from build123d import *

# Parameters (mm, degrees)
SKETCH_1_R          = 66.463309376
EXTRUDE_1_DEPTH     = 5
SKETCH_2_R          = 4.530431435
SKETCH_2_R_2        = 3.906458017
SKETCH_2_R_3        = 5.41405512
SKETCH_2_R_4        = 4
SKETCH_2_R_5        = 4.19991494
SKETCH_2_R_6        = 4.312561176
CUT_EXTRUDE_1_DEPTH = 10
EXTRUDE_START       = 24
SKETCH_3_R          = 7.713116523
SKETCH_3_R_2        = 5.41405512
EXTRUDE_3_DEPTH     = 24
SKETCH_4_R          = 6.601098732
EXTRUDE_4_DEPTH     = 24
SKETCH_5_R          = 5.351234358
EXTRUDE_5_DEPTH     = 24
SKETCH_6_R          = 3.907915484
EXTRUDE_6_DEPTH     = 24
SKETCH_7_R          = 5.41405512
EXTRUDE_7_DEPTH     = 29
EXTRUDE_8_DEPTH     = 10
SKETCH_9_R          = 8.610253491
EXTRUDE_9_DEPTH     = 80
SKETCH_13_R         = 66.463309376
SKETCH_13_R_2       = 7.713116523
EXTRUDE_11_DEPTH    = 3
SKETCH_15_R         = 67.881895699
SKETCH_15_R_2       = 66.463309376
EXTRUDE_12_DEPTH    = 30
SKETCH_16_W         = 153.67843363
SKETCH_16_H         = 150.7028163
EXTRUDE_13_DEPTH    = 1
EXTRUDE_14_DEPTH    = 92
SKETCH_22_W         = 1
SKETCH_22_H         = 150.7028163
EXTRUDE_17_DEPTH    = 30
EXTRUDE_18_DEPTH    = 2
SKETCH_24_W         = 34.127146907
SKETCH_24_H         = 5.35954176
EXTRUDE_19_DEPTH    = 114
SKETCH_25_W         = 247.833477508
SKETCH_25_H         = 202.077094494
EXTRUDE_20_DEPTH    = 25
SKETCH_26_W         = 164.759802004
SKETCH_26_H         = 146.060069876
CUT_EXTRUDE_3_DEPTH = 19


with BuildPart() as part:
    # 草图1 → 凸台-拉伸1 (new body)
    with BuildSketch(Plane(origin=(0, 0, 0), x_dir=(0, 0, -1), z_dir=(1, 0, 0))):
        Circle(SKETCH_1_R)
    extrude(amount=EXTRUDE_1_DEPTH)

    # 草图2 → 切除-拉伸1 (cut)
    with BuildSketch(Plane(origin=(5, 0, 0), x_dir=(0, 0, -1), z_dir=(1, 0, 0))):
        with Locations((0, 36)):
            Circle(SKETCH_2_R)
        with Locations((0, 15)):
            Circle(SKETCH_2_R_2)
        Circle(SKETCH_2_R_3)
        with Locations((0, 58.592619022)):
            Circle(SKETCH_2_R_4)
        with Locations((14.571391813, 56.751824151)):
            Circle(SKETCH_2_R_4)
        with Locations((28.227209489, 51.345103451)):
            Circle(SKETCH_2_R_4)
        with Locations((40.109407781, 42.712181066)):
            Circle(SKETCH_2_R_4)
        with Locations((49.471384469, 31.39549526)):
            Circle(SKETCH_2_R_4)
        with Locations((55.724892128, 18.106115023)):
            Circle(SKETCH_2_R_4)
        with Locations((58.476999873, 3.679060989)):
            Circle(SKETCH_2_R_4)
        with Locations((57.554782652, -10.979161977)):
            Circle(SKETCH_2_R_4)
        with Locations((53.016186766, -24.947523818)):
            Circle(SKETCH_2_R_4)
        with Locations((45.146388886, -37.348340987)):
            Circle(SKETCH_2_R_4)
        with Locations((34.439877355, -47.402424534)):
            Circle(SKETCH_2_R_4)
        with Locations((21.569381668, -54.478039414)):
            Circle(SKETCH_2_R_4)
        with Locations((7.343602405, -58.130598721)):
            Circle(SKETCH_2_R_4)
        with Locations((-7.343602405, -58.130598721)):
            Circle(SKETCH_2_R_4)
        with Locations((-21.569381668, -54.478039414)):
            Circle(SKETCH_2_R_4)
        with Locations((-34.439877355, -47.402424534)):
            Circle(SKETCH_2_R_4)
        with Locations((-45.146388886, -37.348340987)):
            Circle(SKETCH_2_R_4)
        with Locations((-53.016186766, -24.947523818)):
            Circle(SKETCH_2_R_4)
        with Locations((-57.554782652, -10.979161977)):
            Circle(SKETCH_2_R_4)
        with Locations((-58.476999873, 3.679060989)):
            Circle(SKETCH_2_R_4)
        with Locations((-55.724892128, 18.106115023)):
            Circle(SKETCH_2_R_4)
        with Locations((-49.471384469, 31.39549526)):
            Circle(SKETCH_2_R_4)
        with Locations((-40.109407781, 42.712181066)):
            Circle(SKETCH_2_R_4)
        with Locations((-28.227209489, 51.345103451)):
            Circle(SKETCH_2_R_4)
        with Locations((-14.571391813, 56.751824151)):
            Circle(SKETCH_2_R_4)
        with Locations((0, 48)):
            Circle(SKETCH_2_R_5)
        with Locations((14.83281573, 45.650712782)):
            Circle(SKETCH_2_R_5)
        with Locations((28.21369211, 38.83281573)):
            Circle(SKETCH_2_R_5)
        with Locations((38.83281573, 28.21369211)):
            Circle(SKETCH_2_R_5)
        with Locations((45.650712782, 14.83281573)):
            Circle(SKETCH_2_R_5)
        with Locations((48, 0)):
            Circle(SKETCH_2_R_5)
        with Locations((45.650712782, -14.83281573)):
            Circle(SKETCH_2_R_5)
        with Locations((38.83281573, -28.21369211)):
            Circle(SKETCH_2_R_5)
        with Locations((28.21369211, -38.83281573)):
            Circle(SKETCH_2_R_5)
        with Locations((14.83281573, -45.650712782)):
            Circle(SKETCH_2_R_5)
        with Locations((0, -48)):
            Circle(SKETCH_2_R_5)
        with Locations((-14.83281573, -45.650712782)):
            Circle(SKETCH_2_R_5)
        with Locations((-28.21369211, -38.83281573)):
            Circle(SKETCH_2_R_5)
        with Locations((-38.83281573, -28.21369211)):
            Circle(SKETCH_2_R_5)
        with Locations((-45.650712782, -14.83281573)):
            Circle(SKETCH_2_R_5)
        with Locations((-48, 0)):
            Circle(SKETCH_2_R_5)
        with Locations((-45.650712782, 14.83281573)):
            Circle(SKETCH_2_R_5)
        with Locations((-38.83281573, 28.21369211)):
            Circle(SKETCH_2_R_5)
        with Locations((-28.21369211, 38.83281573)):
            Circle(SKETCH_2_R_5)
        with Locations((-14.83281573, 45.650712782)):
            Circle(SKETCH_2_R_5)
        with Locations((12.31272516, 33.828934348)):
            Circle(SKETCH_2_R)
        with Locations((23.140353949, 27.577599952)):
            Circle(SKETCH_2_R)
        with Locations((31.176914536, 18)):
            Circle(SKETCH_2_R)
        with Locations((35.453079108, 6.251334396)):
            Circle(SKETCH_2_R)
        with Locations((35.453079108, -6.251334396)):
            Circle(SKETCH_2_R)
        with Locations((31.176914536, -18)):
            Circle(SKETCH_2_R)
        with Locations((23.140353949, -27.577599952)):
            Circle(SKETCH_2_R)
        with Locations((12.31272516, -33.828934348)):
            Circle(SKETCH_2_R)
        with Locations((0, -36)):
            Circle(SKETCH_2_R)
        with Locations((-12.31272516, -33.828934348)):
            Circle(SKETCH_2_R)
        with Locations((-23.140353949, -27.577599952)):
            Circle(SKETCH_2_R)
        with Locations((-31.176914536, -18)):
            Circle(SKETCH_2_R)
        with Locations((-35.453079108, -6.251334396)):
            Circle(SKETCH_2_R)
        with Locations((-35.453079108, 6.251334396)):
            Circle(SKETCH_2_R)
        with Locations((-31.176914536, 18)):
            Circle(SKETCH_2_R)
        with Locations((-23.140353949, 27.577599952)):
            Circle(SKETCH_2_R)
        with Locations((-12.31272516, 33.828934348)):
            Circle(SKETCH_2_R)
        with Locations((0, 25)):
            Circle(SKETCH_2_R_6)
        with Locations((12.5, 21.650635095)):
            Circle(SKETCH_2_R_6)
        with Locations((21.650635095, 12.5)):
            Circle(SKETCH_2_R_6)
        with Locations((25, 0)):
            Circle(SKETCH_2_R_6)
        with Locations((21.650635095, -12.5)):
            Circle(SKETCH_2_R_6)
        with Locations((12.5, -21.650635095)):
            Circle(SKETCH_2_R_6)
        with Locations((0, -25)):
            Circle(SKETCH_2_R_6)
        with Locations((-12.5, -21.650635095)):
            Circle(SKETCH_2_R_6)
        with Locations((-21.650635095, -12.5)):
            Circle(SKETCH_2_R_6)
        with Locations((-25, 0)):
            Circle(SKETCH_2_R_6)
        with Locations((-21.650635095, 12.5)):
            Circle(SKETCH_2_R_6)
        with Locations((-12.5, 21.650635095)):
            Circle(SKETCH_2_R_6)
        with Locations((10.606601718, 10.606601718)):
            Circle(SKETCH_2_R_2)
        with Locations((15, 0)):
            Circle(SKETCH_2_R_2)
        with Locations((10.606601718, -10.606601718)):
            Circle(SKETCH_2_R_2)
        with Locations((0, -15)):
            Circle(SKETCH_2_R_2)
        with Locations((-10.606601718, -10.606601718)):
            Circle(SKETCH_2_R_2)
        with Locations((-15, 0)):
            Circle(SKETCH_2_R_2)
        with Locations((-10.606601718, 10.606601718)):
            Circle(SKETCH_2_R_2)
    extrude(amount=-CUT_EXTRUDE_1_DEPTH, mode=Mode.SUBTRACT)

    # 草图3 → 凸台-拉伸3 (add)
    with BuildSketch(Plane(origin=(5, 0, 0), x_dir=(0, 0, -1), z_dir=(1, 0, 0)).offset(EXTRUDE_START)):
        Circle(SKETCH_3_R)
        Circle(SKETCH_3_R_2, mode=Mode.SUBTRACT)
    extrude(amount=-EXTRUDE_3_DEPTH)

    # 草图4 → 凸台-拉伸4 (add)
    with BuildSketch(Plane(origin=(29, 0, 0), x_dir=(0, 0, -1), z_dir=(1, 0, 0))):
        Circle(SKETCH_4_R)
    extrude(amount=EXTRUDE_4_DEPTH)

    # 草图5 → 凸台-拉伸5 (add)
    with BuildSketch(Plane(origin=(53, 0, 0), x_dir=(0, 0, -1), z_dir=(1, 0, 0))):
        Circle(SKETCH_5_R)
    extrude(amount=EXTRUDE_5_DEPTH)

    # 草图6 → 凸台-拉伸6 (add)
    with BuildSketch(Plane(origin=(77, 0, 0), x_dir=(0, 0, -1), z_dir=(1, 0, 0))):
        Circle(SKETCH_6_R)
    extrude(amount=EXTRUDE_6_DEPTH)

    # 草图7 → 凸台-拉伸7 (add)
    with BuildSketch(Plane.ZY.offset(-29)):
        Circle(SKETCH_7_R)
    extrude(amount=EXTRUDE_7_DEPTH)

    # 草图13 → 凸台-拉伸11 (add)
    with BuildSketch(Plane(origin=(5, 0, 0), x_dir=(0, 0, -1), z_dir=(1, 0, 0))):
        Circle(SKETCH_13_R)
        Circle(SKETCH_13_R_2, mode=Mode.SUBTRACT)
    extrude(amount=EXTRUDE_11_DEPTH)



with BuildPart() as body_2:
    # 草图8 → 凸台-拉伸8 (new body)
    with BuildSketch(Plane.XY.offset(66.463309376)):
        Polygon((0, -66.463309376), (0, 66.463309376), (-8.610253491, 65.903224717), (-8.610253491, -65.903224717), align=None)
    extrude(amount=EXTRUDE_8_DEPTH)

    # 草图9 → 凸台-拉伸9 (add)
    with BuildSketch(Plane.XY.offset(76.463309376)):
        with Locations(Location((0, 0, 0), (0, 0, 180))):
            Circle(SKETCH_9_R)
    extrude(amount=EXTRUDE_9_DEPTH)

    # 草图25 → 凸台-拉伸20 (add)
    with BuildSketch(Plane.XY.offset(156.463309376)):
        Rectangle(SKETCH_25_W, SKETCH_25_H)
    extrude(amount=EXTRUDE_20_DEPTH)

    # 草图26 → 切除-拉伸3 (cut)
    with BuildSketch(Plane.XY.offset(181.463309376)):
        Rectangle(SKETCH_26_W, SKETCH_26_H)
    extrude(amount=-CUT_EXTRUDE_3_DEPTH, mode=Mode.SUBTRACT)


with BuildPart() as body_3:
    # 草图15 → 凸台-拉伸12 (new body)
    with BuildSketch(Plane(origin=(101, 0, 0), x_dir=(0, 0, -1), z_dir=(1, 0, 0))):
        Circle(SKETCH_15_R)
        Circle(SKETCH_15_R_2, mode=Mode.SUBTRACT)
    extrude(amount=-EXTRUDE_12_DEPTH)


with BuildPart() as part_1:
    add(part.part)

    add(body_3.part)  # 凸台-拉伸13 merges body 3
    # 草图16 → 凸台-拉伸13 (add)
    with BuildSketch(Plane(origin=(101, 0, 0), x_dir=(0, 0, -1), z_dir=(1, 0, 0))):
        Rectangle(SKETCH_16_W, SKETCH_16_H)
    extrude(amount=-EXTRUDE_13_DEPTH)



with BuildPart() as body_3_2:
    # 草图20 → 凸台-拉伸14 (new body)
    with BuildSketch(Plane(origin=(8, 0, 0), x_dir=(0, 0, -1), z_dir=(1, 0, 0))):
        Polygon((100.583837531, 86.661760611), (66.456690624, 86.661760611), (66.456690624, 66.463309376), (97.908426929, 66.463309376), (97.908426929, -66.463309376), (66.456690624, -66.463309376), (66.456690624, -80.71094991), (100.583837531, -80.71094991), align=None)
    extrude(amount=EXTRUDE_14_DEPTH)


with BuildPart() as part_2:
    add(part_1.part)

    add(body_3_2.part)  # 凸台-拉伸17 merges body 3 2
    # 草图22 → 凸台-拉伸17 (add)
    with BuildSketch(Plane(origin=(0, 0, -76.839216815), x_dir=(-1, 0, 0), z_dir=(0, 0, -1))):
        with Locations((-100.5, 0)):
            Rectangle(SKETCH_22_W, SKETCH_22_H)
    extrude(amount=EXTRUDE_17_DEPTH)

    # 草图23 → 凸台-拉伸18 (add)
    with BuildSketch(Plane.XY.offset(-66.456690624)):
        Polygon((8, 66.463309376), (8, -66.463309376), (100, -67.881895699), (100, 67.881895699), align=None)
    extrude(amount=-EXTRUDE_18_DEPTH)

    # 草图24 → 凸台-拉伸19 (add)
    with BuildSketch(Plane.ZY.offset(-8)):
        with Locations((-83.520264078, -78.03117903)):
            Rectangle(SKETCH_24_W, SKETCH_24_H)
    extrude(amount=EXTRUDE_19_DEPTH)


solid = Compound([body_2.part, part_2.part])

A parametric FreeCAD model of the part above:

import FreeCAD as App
import Part
import Sketcher
Q = App.Units.Quantity

doc = App.newDocument("Part")
body = doc.addObject("PartDesign::Body", "Body")

# Sketch on YZ plane
sketch1 = body.newObject("Sketcher::SketchObject", "Sketch")
sketch1.AttachmentSupport = (doc.getObject("YZ_Plane"), [""])
sketch1.MapMode = "FlatFace"
sketch1.addGeometry(Part.Circle(App.Vector(0, 0, 0), App.Vector(0, 0, 1), 66.463309), False)
sketch1.addConstraint([
    Sketcher.Constraint("Coincident", 0, 3, -1, 1),
    Sketcher.Constraint("Diameter", 0, Q("132.926619 mm")),
])
pad1 = body.newObject("PartDesign::Pad", "Pad")
pad1.Profile = sketch1
pad1.Length = 5

# Sketch on YZ plane
sketch2 = body.newObject("Sketcher::SketchObject", "Sketch001")
sketch2.AttachmentSupport = (doc.getObject("YZ_Plane"), [""])
sketch2.MapMode = "FlatFace"
sketch2.AttachmentOffset = App.Placement(App.Vector(0, 0, 5), App.Rotation())
sketch2.addGeometry([
    Part.Circle(App.Vector(36, 0, 0), App.Vector(0, 0, 1), 4.530431),  # 0
    Part.Circle(App.Vector(15, 0, 0), App.Vector(0, 0, 1), 3.906458),  # 1
    Part.Circle(App.Vector(0, 0, 0), App.Vector(0, 0, 1), 5.414055),  # 2
    Part.Circle(App.Vector(58.592619, 0, 0), App.Vector(0, 0, 1), 4),  # 3
    Part.Circle(App.Vector(56.751824, -14.571392, 0), App.Vector(0, 0, 1), 4),  # 4
    Part.Circle(App.Vector(51.345103, -28.227209, 0), App.Vector(0, 0, 1), 4),  # 5
    Part.Circle(App.Vector(42.712181, -40.109408, 0), App.Vector(0, 0, 1), 4),  # 6
    Part.Circle(App.Vector(31.395495, -49.471384, 0), App.Vector(0, 0, 1), 4),  # 7
    Part.Circle(App.Vector(18.106115, -55.724892, 0), App.Vector(0, 0, 1), 4),  # 8
    Part.Circle(App.Vector(3.679061, -58.477, 0), App.Vector(0, 0, 1), 4),  # 9
    Part.Circle(App.Vector(-10.979162, -57.554783, 0), App.Vector(0, 0, 1), 4),  # 10
    Part.Circle(App.Vector(-24.947524, -53.016187, 0), App.Vector(0, 0, 1), 4),  # 11
    Part.Circle(App.Vector(-37.348341, -45.146389, 0), App.Vector(0, 0, 1), 4),  # 12
    Part.Circle(App.Vector(-47.402425, -34.439877, 0), App.Vector(0, 0, 1), 4),  # 13
    Part.Circle(App.Vector(-54.478039, -21.569382, 0), App.Vector(0, 0, 1), 4),  # 14
    Part.Circle(App.Vector(-58.130599, -7.343602, 0), App.Vector(0, 0, 1), 4),  # 15
    Part.Circle(App.Vector(-58.130599, 7.343602, 0), App.Vector(0, 0, 1), 4),  # 16
    Part.Circle(App.Vector(-54.478039, 21.569382, 0), App.Vector(0, 0, 1), 4),  # 17
    Part.Circle(App.Vector(-47.402425, 34.439877, 0), App.Vector(0, 0, 1), 4),  # 18
    Part.Circle(App.Vector(-37.348341, 45.146389, 0), App.Vector(0, 0, 1), 4),  # 19
    Part.Circle(App.Vector(-24.947524, 53.016187, 0), App.Vector(0, 0, 1), 4),  # 20
    Part.Circle(App.Vector(-10.979162, 57.554783, 0), App.Vector(0, 0, 1), 4),  # 21
    Part.Circle(App.Vector(3.679061, 58.477, 0), App.Vector(0, 0, 1), 4),  # 22
    Part.Circle(App.Vector(18.106115, 55.724892, 0), App.Vector(0, 0, 1), 4),  # 23
    Part.Circle(App.Vector(31.395495, 49.471384, 0), App.Vector(0, 0, 1), 4),  # 24
    Part.Circle(App.Vector(42.712181, 40.109408, 0), App.Vector(0, 0, 1), 4),  # 25
    Part.Circle(App.Vector(51.345103, 28.227209, 0), App.Vector(0, 0, 1), 4),  # 26
    Part.Circle(App.Vector(56.751824, 14.571392, 0), App.Vector(0, 0, 1), 4),  # 27
    Part.Circle(App.Vector(48, 0, 0), App.Vector(0, 0, 1), 4.199915),  # 28
    Part.Circle(App.Vector(45.650713, -14.832816, 0), App.Vector(0, 0, 1), 4.199915),  # 29
    Part.Circle(App.Vector(38.832816, -28.213692, 0), App.Vector(0, 0, 1), 4.199915),  # 30
    Part.Circle(App.Vector(28.213692, -38.832816, 0), App.Vector(0, 0, 1), 4.199915),  # 31
    Part.Circle(App.Vector(14.832816, -45.650713, 0), App.Vector(0, 0, 1), 4.199915),  # 32
    Part.Circle(App.Vector(0, -48, 0), App.Vector(0, 0, 1), 4.199915),  # 33
    Part.Circle(App.Vector(-14.832816, -45.650713, 0), App.Vector(0, 0, 1), 4.199915),  # 34
    Part.Circle(App.Vector(-28.213692, -38.832816, 0), App.Vector(0, 0, 1), 4.199915),  # 35
    Part.Circle(App.Vector(-38.832816, -28.213692, 0), App.Vector(0, 0, 1), 4.199915),  # 36
    Part.Circle(App.Vector(-45.650713, -14.832816, 0), App.Vector(0, 0, 1), 4.199915),  # 37
    Part.Circle(App.Vector(-48, 0, 0), App.Vector(0, 0, 1), 4.199915),  # 38
    Part.Circle(App.Vector(-45.650713, 14.832816, 0), App.Vector(0, 0, 1), 4.199915),  # 39
    Part.Circle(App.Vector(-38.832816, 28.213692, 0), App.Vector(0, 0, 1), 4.199915),  # 40
    Part.Circle(App.Vector(-28.213692, 38.832816, 0), App.Vector(0, 0, 1), 4.199915),  # 41
    Part.Circle(App.Vector(-14.832816, 45.650713, 0), App.Vector(0, 0, 1), 4.199915),  # 42
    Part.Circle(App.Vector(0, 48, 0), App.Vector(0, 0, 1), 4.199915),  # 43
    Part.Circle(App.Vector(14.832816, 45.650713, 0), App.Vector(0, 0, 1), 4.199915),  # 44
    Part.Circle(App.Vector(28.213692, 38.832816, 0), App.Vector(0, 0, 1), 4.199915),  # 45
    Part.Circle(App.Vector(38.832816, 28.213692, 0), App.Vector(0, 0, 1), 4.199915),  # 46
    Part.Circle(App.Vector(45.650713, 14.832816, 0), App.Vector(0, 0, 1), 4.199915),  # 47
    Part.Circle(App.Vector(33.828934, -12.312725, 0), App.Vector(0, 0, 1), 4.530431),  # 48
    Part.Circle(App.Vector(27.5776, -23.140354, 0), App.Vector(0, 0, 1), 4.530431),  # 49
    Part.Circle(App.Vector(18, -31.176915, 0), App.Vector(0, 0, 1), 4.530431),  # 50
    Part.Circle(App.Vector(6.251334, -35.453079, 0), App.Vector(0, 0, 1), 4.530431),  # 51
    Part.Circle(App.Vector(-6.251334, -35.453079, 0), App.Vector(0, 0, 1), 4.530431),  # 52
    Part.Circle(App.Vector(-18, -31.176915, 0), App.Vector(0, 0, 1), 4.530431),  # 53
    Part.Circle(App.Vector(-27.5776, -23.140354, 0), App.Vector(0, 0, 1), 4.530431),  # 54
    Part.Circle(App.Vector(-33.828934, -12.312725, 0), App.Vector(0, 0, 1), 4.530431),  # 55
    Part.Circle(App.Vector(-36, 0, 0), App.Vector(0, 0, 1), 4.530431),  # 56
    Part.Circle(App.Vector(-33.828934, 12.312725, 0), App.Vector(0, 0, 1), 4.530431),  # 57
    Part.Circle(App.Vector(-27.5776, 23.140354, 0), App.Vector(0, 0, 1), 4.530431),  # 58
    Part.Circle(App.Vector(-18, 31.176915, 0), App.Vector(0, 0, 1), 4.530431),  # 59
    Part.Circle(App.Vector(-6.251334, 35.453079, 0), App.Vector(0, 0, 1), 4.530431),  # 60
    Part.Circle(App.Vector(6.251334, 35.453079, 0), App.Vector(0, 0, 1), 4.530431),  # 61
    Part.Circle(App.Vector(18, 31.176915, 0), App.Vector(0, 0, 1), 4.530431),  # 62
    Part.Circle(App.Vector(27.5776, 23.140354, 0), App.Vector(0, 0, 1), 4.530431),  # 63
    Part.Circle(App.Vector(33.828934, 12.312725, 0), App.Vector(0, 0, 1), 4.530431),  # 64
    Part.Circle(App.Vector(25, 0, 0), App.Vector(0, 0, 1), 4.312561),  # 65
    Part.Circle(App.Vector(21.650635, -12.5, 0), App.Vector(0, 0, 1), 4.312561),  # 66
    Part.Circle(App.Vector(12.5, -21.650635, 0), App.Vector(0, 0, 1), 4.312561),  # 67
    Part.Circle(App.Vector(0, -25, 0), App.Vector(0, 0, 1), 4.312561),  # 68
    Part.Circle(App.Vector(-12.5, -21.650635, 0), App.Vector(0, 0, 1), 4.312561),  # 69
    Part.Circle(App.Vector(-21.650635, -12.5, 0), App.Vector(0, 0, 1), 4.312561),  # 70
    Part.Circle(App.Vector(-25, 0, 0), App.Vector(0, 0, 1), 4.312561),  # 71
    Part.Circle(App.Vector(-21.650635, 12.5, 0), App.Vector(0, 0, 1), 4.312561),  # 72
    Part.Circle(App.Vector(-12.5, 21.650635, 0), App.Vector(0, 0, 1), 4.312561),  # 73
    Part.Circle(App.Vector(0, 25, 0), App.Vector(0, 0, 1), 4.312561),  # 74
    Part.Circle(App.Vector(12.5, 21.650635, 0), App.Vector(0, 0, 1), 4.312561),  # 75
    Part.Circle(App.Vector(21.650635, 12.5, 0), App.Vector(0, 0, 1), 4.312561),  # 76
    Part.Circle(App.Vector(10.606602, -10.606602, 0), App.Vector(0, 0, 1), 3.906458),  # 77
    Part.Circle(App.Vector(0, -15, 0), App.Vector(0, 0, 1), 3.906458),  # 78
    Part.Circle(App.Vector(-10.606602, -10.606602, 0), App.Vector(0, 0, 1), 3.906458),  # 79
    Part.Circle(App.Vector(-15, 0, 0), App.Vector(0, 0, 1), 3.906458),  # 80
    Part.Circle(App.Vector(-10.606602, 10.606602, 0), App.Vector(0, 0, 1), 3.906458),  # 81
    Part.Circle(App.Vector(0, 15, 0), App.Vector(0, 0, 1), 3.906458),  # 82
    Part.Circle(App.Vector(10.606602, 10.606602, 0), App.Vector(0, 0, 1), 3.906458),  # 83
], False)
sketch2.addConstraint([
    Sketcher.Constraint("Coincident", 2, 3, -1, 1),
    Sketcher.Constraint("Equal", 3, 4),
    Sketcher.Constraint("Equal", 4, 5),
    Sketcher.Constraint("Equal", 5, 6),
    Sketcher.Constraint("Equal", 6, 7),
    Sketcher.Constraint("Equal", 7, 8),
    Sketcher.Constraint("Equal", 8, 9),
    Sketcher.Constraint("Equal", 9, 10),
    Sketcher.Constraint("Equal", 10, 11),
    Sketcher.Constraint("Equal", 11, 12),
    Sketcher.Constraint("Equal", 12, 13),
    Sketcher.Constraint("Equal", 13, 14),
    Sketcher.Constraint("Equal", 14, 15),
    Sketcher.Constraint("Equal", 15, 16),
    Sketcher.Constraint("Equal", 16, 17),
    Sketcher.Constraint("Equal", 17, 18),
    Sketcher.Constraint("Equal", 18, 19),
    Sketcher.Constraint("Equal", 19, 20),
    Sketcher.Constraint("Equal", 20, 21),
    Sketcher.Constraint("Equal", 21, 22),
    Sketcher.Constraint("Equal", 22, 23),
    Sketcher.Constraint("Equal", 23, 24),
    Sketcher.Constraint("Equal", 24, 25),
    Sketcher.Constraint("Equal", 25, 26),
    Sketcher.Constraint("Equal", 26, 27),
    Sketcher.Constraint("Equal", 28, 29),
    Sketcher.Constraint("Equal", 29, 30),
    Sketcher.Constraint("Equal", 30, 31),
    Sketcher.Constraint("Equal", 31, 32),
    Sketcher.Constraint("Equal", 32, 33),
    Sketcher.Constraint("Equal", 33, 34),
    Sketcher.Constraint("Equal", 34, 35),
    Sketcher.Constraint("Equal", 35, 36),
    Sketcher.Constraint("Equal", 36, 37),
    Sketcher.Constraint("Equal", 37, 38),
    Sketcher.Constraint("Equal", 38, 39),
    Sketcher.Constraint("Equal", 39, 40),
    Sketcher.Constraint("Equal", 40, 41),
    Sketcher.Constraint("Equal", 41, 42),
    Sketcher.Constraint("Equal", 42, 43),
    Sketcher.Constraint("Equal", 43, 44),
    Sketcher.Constraint("Equal", 44, 45),
    Sketcher.Constraint("Equal", 45, 46),
    Sketcher.Constraint("Equal", 46, 47),
    Sketcher.Constraint("Equal", 0, 48),
    Sketcher.Constraint("Equal", 48, 49),
    Sketcher.Constraint("Equal", 49, 50),
    Sketcher.Constraint("Equal", 50, 51),
    Sketcher.Constraint("Equal", 51, 52),
    Sketcher.Constraint("Equal", 52, 53),
    Sketcher.Constraint("Equal", 53, 54),
    Sketcher.Constraint("Equal", 54, 55),
    Sketcher.Constraint("Equal", 55, 56),
    Sketcher.Constraint("Equal", 56, 57),
    Sketcher.Constraint("Equal", 57, 58),
    Sketcher.Constraint("Equal", 58, 59),
    Sketcher.Constraint("Equal", 59, 60),
    Sketcher.Constraint("Equal", 60, 61),
    Sketcher.Constraint("Equal", 61, 62),
    Sketcher.Constraint("Equal", 62, 63),
    Sketcher.Constraint("Equal", 63, 64),
    Sketcher.Constraint("Equal", 65, 66),
    Sketcher.Constraint("Equal", 66, 67),
    Sketcher.Constraint("Equal", 67, 68),
    Sketcher.Constraint("Equal", 68, 69),
    Sketcher.Constraint("Equal", 69, 70),
    Sketcher.Constraint("Equal", 70, 71),
    Sketcher.Constraint("Equal", 71, 72),
    Sketcher.Constraint("Equal", 72, 73),
    Sketcher.Constraint("Equal", 73, 74),
    Sketcher.Constraint("Equal", 74, 75),
    Sketcher.Constraint("Equal", 75, 76),
    Sketcher.Constraint("Equal", 1, 77),
    Sketcher.Constraint("Equal", 77, 78),
    Sketcher.Constraint("Equal", 78, 79),
    Sketcher.Constraint("Equal", 79, 80),
    Sketcher.Constraint("Equal", 80, 81),
    Sketcher.Constraint("Equal", 81, 82),
    Sketcher.Constraint("Equal", 82, 83),
    Sketcher.Constraint("Symmetric", 28, 3, 38, 3, -1, 1),
    Sketcher.Constraint("Symmetric", 29, 3, 39, 3, -1, 1),
    Sketcher.Constraint("Symmetric", 30, 3, 40, 3, -1, 1),
    Sketcher.Constraint("Symmetric", 31, 3, 41, 3, -1, 1),
    Sketcher.Constraint("Symmetric", 32, 3, 42, 3, -1, 1),
    Sketcher.Constraint("Symmetric", 33, 3, 43, 3, -1, 1),
    Sketcher.Constraint("Symmetric", 34, 3, 44, 3, -1, 1),
    Sketcher.Constraint("Symmetric", 35, 3, 45, 3, -1, 1),
    Sketcher.Constraint("Symmetric", 36, 3, 46, 3, -1, 1),
    Sketcher.Constraint("Symmetric", 37, 3, 47, 3, -1, 1),
    Sketcher.Constraint("Symmetric", 0, 3, 56, 3, -1, 1),
    Sketcher.Constraint("Symmetric", 48, 3, 57, 3, -1, 1),
    Sketcher.Constraint("Symmetric", 49, 3, 58, 3, -1, 1),
    Sketcher.Constraint("Symmetric", 50, 3, 59, 3, -1, 1),
    Sketcher.Constraint("Symmetric", 51, 3, 60, 3, -1, 1),
    Sketcher.Constraint("Symmetric", 52, 3, 61, 3, -1, 1),
    Sketcher.Constraint("Symmetric", 53, 3, 62, 3, -1, 1),
    Sketcher.Constraint("Symmetric", 54, 3, 63, 3, -1, 1),
    Sketcher.Constraint("Symmetric", 55, 3, 64, 3, -1, 1),
    Sketcher.Constraint("Symmetric", 65, 3, 71, 3, -1, 1),
    Sketcher.Constraint("Symmetric", 66, 3, 72, 3, -1, 1),
    Sketcher.Constraint("Symmetric", 67, 3, 73, 3, -1, 1),
    Sketcher.Constraint("Symmetric", 68, 3, 74, 3, -1, 1),
    Sketcher.Constraint("Symmetric", 69, 3, 75, 3, -1, 1),
    Sketcher.Constraint("Symmetric", 70, 3, 76, 3, -1, 1),
    Sketcher.Constraint("Symmetric", 1, 3, 80, 3, -1, 1),
    Sketcher.Constraint("Symmetric", 77, 3, 81, 3, -1, 1),
    Sketcher.Constraint("Symmetric", 78, 3, 82, 3, -1, 1),
    Sketcher.Constraint("Symmetric", 79, 3, 83, 3, -1, 1),
    Sketcher.Constraint("Symmetric", 32, 3, 34, 3, -2),
    Sketcher.Constraint("Symmetric", 31, 3, 35, 3, -2),
    Sketcher.Constraint("Symmetric", 30, 3, 36, 3, -2),
    Sketcher.Constraint("Symmetric", 29, 3, 37, 3, -2),
    Sketcher.Constraint("Symmetric", 51, 3, 52, 3, -2),
    Sketcher.Constraint("Symmetric", 50, 3, 53, 3, -2),
    Sketcher.Constraint("Symmetric", 49, 3, 54, 3, -2),
    Sketcher.Constraint("Symmetric", 48, 3, 55, 3, -2),
    Sketcher.Constraint("Symmetric", 67, 3, 69, 3, -2),
    Sketcher.Constraint("Symmetric", 66, 3, 70, 3, -2),
    Sketcher.Constraint("Symmetric", 77, 3, 79, 3, -2),
    Sketcher.Constraint("Symmetric", 15, 3, 16, 3, -1),
    Sketcher.Constraint("Symmetric", 14, 3, 17, 3, -1),
    Sketcher.Constraint("Symmetric", 13, 3, 18, 3, -1),
    Sketcher.Constraint("Symmetric", 12, 3, 19, 3, -1),
    Sketcher.Constraint("Symmetric", 11, 3, 20, 3, -1),
    Sketcher.Constraint("Symmetric", 10, 3, 21, 3, -1),
    Sketcher.Constraint("Symmetric", 9, 3, 22, 3, -1),
    Sketcher.Constraint("Symmetric", 8, 3, 23, 3, -1),
    Sketcher.Constraint("Symmetric", 7, 3, 24, 3, -1),
    Sketcher.Constraint("Symmetric", 6, 3, 25, 3, -1),
    Sketcher.Constraint("Symmetric", 5, 3, 26, 3, -1),
    Sketcher.Constraint("Symmetric", 4, 3, 27, 3, -1),
    Sketcher.Constraint("PointOnObject", 0, 3, -1),
    Sketcher.Constraint("PointOnObject", 1, 3, -1),
    Sketcher.Constraint("PointOnObject", 3, 3, -1),
    Sketcher.Constraint("PointOnObject", 28, 3, -1),
    Sketcher.Constraint("PointOnObject", 33, 3, -2),
    Sketcher.Constraint("PointOnObject", 65, 3, -1),
    Sketcher.Constraint("PointOnObject", 68, 3, -2),
    Sketcher.Constraint("PointOnObject", 78, 3, -2),
    Sketcher.Constraint("Diameter", 3, Q("8 mm")),
    Sketcher.Constraint("DistanceX", -1, 1, 0, 3, Q("36 mm")),
    Sketcher.Constraint("DistanceX", -1, 1, 1, 3, Q("15 mm")),
    Sketcher.Constraint("DistanceX", -1, 1, 28, 3, Q("48 mm")),
    Sketcher.Constraint("DistanceY", 33, 3, -1, 1, Q("48 mm")),
    Sketcher.Constraint("DistanceX", -1, 1, 50, 3, Q("18 mm")),
    Sketcher.Constraint("DistanceX", -1, 1, 65, 3, Q("25 mm")),
    Sketcher.Constraint("DistanceY", 68, 3, -1, 1, Q("25 mm")),
    Sketcher.Constraint("DistanceY", 78, 3, -1, 1, Q("15 mm")),
    Sketcher.Constraint("DistanceY", 66, 3, -1, 1, Q("12.5 mm")),
    Sketcher.Constraint("DistanceX", -1, 1, 67, 3, Q("12.5 mm")),
    Sketcher.Constraint("Diameter", 2, Q("10.82811 mm")),
    Sketcher.Constraint("Diameter", 28, Q("8.39983 mm")),
    Sketcher.Constraint("Diameter", 0, Q("9.060863 mm")),
    Sketcher.Constraint("Diameter", 1, Q("7.812916 mm")),
    Sketcher.Constraint("Diameter", 65, Q("8.625122 mm")),
    Sketcher.Constraint("DistanceY", 9, 3, -1, 1, Q("58.477 mm")),
    Sketcher.Constraint("DistanceX", 15, 3, -1, 1, Q("58.130599 mm")),
    Sketcher.Constraint("DistanceX", -1, 1, 49, 3, Q("27.5776 mm")),
    Sketcher.Constraint("DistanceX", -1, 1, 77, 3, Q("10.606602 mm")),
    Sketcher.Constraint("DistanceY", 77, 3, -1, 1, Q("10.606602 mm")),
    Sketcher.Constraint("DistanceX", -1, 1, 3, 3, Q("58.592619 mm")),
    Sketcher.Constraint("DistanceY", 4, 3, -1, 1, Q("14.571392 mm")),
    Sketcher.Constraint("DistanceY", 5, 3, -1, 1, Q("28.227209 mm")),
    Sketcher.Constraint("DistanceX", -1, 1, 6, 3, Q("42.712181 mm")),
    Sketcher.Constraint("DistanceX", -1, 1, 9, 3, Q("3.679061 mm")),
    Sketcher.Constraint("DistanceX", 10, 3, -1, 1, Q("10.979162 mm")),
    Sketcher.Constraint("DistanceX", 12, 3, -1, 1, Q("37.348341 mm")),
    Sketcher.Constraint("DistanceY", 12, 3, -1, 1, Q("45.146389 mm")),
    Sketcher.Constraint("DistanceX", 14, 3, -1, 1, Q("54.478039 mm")),
    Sketcher.Constraint("DistanceY", 14, 3, -1, 1, Q("21.569382 mm")),
    Sketcher.Constraint("DistanceY", 51, 3, -1, 1, Q("35.453079 mm")),
    Sketcher.Constraint("DistanceX", -1, 1, 4, 3, Q("56.751824 mm")),
    Sketcher.Constraint("DistanceX", -1, 1, 5, 3, Q("51.345103 mm")),
    Sketcher.Constraint("DistanceY", 6, 3, -1, 1, Q("40.109408 mm")),
    Sketcher.Constraint("DistanceX", -1, 1, 7, 3, Q("31.395495 mm")),
    Sketcher.Constraint("DistanceY", 7, 3, -1, 1, Q("49.471384 mm")),
    Sketcher.Constraint("DistanceX", -1, 1, 8, 3, Q("18.106115 mm")),
    Sketcher.Constraint("DistanceY", 8, 3, -1, 1, Q("55.724892 mm")),
    Sketcher.Constraint("DistanceY", 10, 3, -1, 1, Q("57.554783 mm")),
    Sketcher.Constraint("DistanceX", 11, 3, -1, 1, Q("24.947524 mm")),
    Sketcher.Constraint("DistanceY", 11, 3, -1, 1, Q("53.016187 mm")),
    Sketcher.Constraint("DistanceX", 13, 3, -1, 1, Q("47.402425 mm")),
    Sketcher.Constraint("DistanceY", 13, 3, -1, 1, Q("34.439877 mm")),
    Sketcher.Constraint("DistanceY", 15, 3, -1, 1, Q("7.343602 mm")),
    Sketcher.Constraint("DistanceX", -1, 1, 29, 3, Q("45.650713 mm")),
    Sketcher.Constraint("DistanceY", 29, 3, -1, 1, Q("14.832816 mm")),
    Sketcher.Constraint("DistanceX", -1, 1, 30, 3, Q("38.832816 mm")),
    Sketcher.Constraint("DistanceY", 30, 3, -1, 1, Q("28.213692 mm")),
    Sketcher.Constraint("DistanceX", -1, 1, 31, 3, Q("28.213692 mm")),
    Sketcher.Constraint("DistanceY", 31, 3, -1, 1, Q("38.832816 mm")),
    Sketcher.Constraint("DistanceX", -1, 1, 32, 3, Q("14.832816 mm")),
    Sketcher.Constraint("DistanceY", 32, 3, -1, 1, Q("45.650713 mm")),
    Sketcher.Constraint("DistanceX", -1, 1, 48, 3, Q("33.828934 mm")),
    Sketcher.Constraint("DistanceY", 48, 3, -1, 1, Q("12.312725 mm")),
    Sketcher.Constraint("DistanceY", 49, 3, -1, 1, Q("23.140354 mm")),
    Sketcher.Constraint("DistanceY", 50, 3, -1, 1, Q("31.176915 mm")),
    Sketcher.Constraint("DistanceX", -1, 1, 51, 3, Q("6.251334 mm")),
    Sketcher.Constraint("DistanceX", -1, 1, 66, 3, Q("21.650635 mm")),
    Sketcher.Constraint("DistanceY", 67, 3, -1, 1, Q("21.650635 mm")),
])
pocket1 = body.newObject("PartDesign::Pocket", "Pocket")
pocket1.Profile = sketch2
pocket1.Length = 10

# Sketch on YZ plane
sketch3 = body.newObject("Sketcher::SketchObject", "Sketch002")
sketch3.AttachmentSupport = (doc.getObject("YZ_Plane"), [""])
sketch3.MapMode = "FlatFace"
sketch3.AttachmentOffset = App.Placement(App.Vector(0, 0, 29), App.Rotation())
sketch3.addGeometry([
    Part.Circle(App.Vector(0, 0, 0), App.Vector(0, 0, 1), 7.713117),
    Part.Circle(App.Vector(0, 0, 0), App.Vector(0, 0, 1), 5.414055),
], False)
sketch3.addConstraint([
    Sketcher.Constraint("Coincident", 0, 3, -1, 1),
    Sketcher.Constraint("Coincident", 1, 3, -1, 1),
    Sketcher.Constraint("Diameter", 1, Q("10.82811 mm")),
    Sketcher.Constraint("Diameter", 0, Q("15.426233 mm")),
])
pad2 = body.newObject("PartDesign::Pad", "Pad001")
pad2.Profile = sketch3
pad2.Length = 24
pad2.Reversed = True

# Sketch on YZ plane
sketch4 = body.newObject("Sketcher::SketchObject", "Sketch003")
sketch4.AttachmentSupport = (doc.getObject("YZ_Plane"), [""])
sketch4.MapMode = "FlatFace"
sketch4.AttachmentOffset = App.Placement(App.Vector(0, 0, 29), App.Rotation())
sketch4.addGeometry(Part.Circle(App.Vector(0, 0, 0), App.Vector(0, 0, 1), 6.601099), False)
sketch4.addConstraint([
    Sketcher.Constraint("Coincident", 0, 3, -1, 1),
    Sketcher.Constraint("Diameter", 0, Q("13.202197 mm")),
])
pad3 = body.newObject("PartDesign::Pad", "Pad002")
pad3.Profile = sketch4
pad3.Length = 24

# Sketch on YZ plane
sketch5 = body.newObject("Sketcher::SketchObject", "Sketch004")
sketch5.AttachmentSupport = (doc.getObject("YZ_Plane"), [""])
sketch5.MapMode = "FlatFace"
sketch5.AttachmentOffset = App.Placement(App.Vector(0, 0, 53), App.Rotation())
sketch5.addGeometry(Part.Circle(App.Vector(0, 0, 0), App.Vector(0, 0, 1), 5.351234), False)
sketch5.addConstraint([
    Sketcher.Constraint("Coincident", 0, 3, -1, 1),
    Sketcher.Constraint("Diameter", 0, Q("10.702469 mm")),
])
pad4 = body.newObject("PartDesign::Pad", "Pad003")
pad4.Profile = sketch5
pad4.Length = 24

# Sketch on YZ plane
sketch6 = body.newObject("Sketcher::SketchObject", "Sketch005")
sketch6.AttachmentSupport = (doc.getObject("YZ_Plane"), [""])
sketch6.MapMode = "FlatFace"
sketch6.AttachmentOffset = App.Placement(App.Vector(0, 0, 77), App.Rotation())
sketch6.addGeometry(Part.Circle(App.Vector(0, 0, 0), App.Vector(0, 0, 1), 3.907915), False)
sketch6.addConstraint([
    Sketcher.Constraint("Coincident", 0, 3, -1, 1),
    Sketcher.Constraint("Diameter", 0, Q("7.815831 mm")),
])
pad5 = body.newObject("PartDesign::Pad", "Pad004")
pad5.Profile = sketch6
pad5.Length = 24

# Sketch on YZ plane
sketch7 = body.newObject("Sketcher::SketchObject", "Sketch006")
sketch7.AttachmentSupport = (doc.getObject("YZ_Plane"), [""])
sketch7.MapMode = "FlatFace"
sketch7.AttachmentOffset = App.Placement(App.Vector(0, 0, 29), App.Rotation())
sketch7.addGeometry(Part.Circle(App.Vector(0, 0, 0), App.Vector(0, 0, 1), 5.414055), False)
sketch7.addConstraint([
    Sketcher.Constraint("Coincident", 0, 3, -1, 1),
    Sketcher.Constraint("Diameter", 0, Q("10.82811 mm")),
])
pad6 = body.newObject("PartDesign::Pad", "Pad005")
pad6.Profile = sketch7
pad6.Length = 29
pad6.Reversed = True

# Sketch on YZ plane
sketch8 = body.newObject("Sketcher::SketchObject", "Sketch007")
sketch8.AttachmentSupport = (doc.getObject("YZ_Plane"), [""])
sketch8.MapMode = "FlatFace"
sketch8.AttachmentOffset = App.Placement(App.Vector(0, 0, 5), App.Rotation())
sketch8.addGeometry([
    Part.Circle(App.Vector(0, 0, 0), App.Vector(0, 0, 1), 66.463309),
    Part.Circle(App.Vector(0, 0, 0), App.Vector(0, 0, 1), 7.713117),
], False)
sketch8.addConstraint([
    Sketcher.Constraint("Coincident", 0, 3, -1, 1),
    Sketcher.Constraint("Coincident", 1, 3, -1, 1),
    Sketcher.Constraint("Diameter", 0, Q("132.926619 mm")),
    Sketcher.Constraint("Diameter", 1, Q("15.426233 mm")),
])
pad7 = body.newObject("PartDesign::Pad", "Pad006")
pad7.Profile = sketch8
pad7.Length = 3
body2 = doc.addObject("PartDesign::Body", "Body001")

# Sketch on XY plane
sketch9 = body2.newObject("Sketcher::SketchObject", "Sketch008")
sketch9.AttachmentSupport = (doc.getObject("XY_Plane001"), [""])
sketch9.MapMode = "FlatFace"
sketch9.AttachmentOffset = App.Placement(App.Vector(0, 0, 66.463309), App.Rotation())
sketch9.addGeometry([
    Part.LineSegment(App.Vector(0, -66.463309, 0), App.Vector(0, 66.463309, 0)),
    Part.LineSegment(App.Vector(0, 66.463309, 0), App.Vector(-8.610253, 65.903225, 0)),
    Part.LineSegment(App.Vector(-8.610253, 65.903225, 0), App.Vector(-8.610253, -65.903225, 0)),
    Part.LineSegment(App.Vector(-8.610253, -65.903225, 0), App.Vector(0, -66.463309, 0)),
], False)
sketch9.addConstraint([
    Sketcher.Constraint("Coincident", 0, 2, 1, 1),
    Sketcher.Constraint("Coincident", 1, 2, 2, 1),
    Sketcher.Constraint("Coincident", 2, 2, 3, 1),
    Sketcher.Constraint("Coincident", 3, 2, 0, 1),
    Sketcher.Constraint("Vertical", 0),
    Sketcher.Constraint("Vertical", 2),
    Sketcher.Constraint("Symmetric", 0, 2, 3, 2, -1, 1),
    Sketcher.Constraint("Equal", 1, 3),
    Sketcher.Constraint("DistanceY", 0, 1, 0, 2, Q("132.926619 mm")),
    Sketcher.Constraint("DistanceY", 2, 2, 2, 1, Q("131.806449 mm")),
    Sketcher.Constraint("Distance", 1, Q("8.628451 mm")),
])
pad8 = body2.newObject("PartDesign::Pad", "Pad007")
pad8.Profile = sketch9
pad8.Length = 10

# Sketch on XY plane
sketch10 = body2.newObject("Sketcher::SketchObject", "Sketch009")
sketch10.AttachmentSupport = (doc.getObject("XY_Plane001"), [""])
sketch10.MapMode = "FlatFace"
sketch10.AttachmentOffset = App.Placement(App.Vector(0, 0, 76.463309), App.Rotation())
sketch10.addGeometry(Part.Circle(App.Vector(0, 0, 0), App.Vector(0, 0, 1), 8.610253), False)
sketch10.addConstraint([
    Sketcher.Constraint("Coincident", 0, 3, -1, 1),
    Sketcher.Constraint("Diameter", 0, Q("17.220507 mm")),
])
pad9 = body2.newObject("PartDesign::Pad", "Pad008")
pad9.Profile = sketch10
pad9.Length = 80

# Sketch on XY plane
sketch11 = body2.newObject("Sketcher::SketchObject", "Sketch010")
sketch11.AttachmentSupport = (doc.getObject("XY_Plane001"), [""])
sketch11.MapMode = "FlatFace"
sketch11.AttachmentOffset = App.Placement(App.Vector(0, 0, 156.463309), App.Rotation())
sketch11.addGeometry([
    Part.LineSegment(App.Vector(-123.916739, 101.038547, 0), App.Vector(-123.916739, -101.038547, 0)),
    Part.LineSegment(App.Vector(-123.916739, -101.038547, 0), App.Vector(123.916739, -101.038547, 0)),
    Part.LineSegment(App.Vector(123.916739, -101.038547, 0), App.Vector(123.916739, 101.038547, 0)),
    Part.LineSegment(App.Vector(123.916739, 101.038547, 0), App.Vector(-123.916739, 101.038547, 0)),
], False)
sketch11.addConstraint([
    Sketcher.Constraint("Coincident", 0, 2, 1, 1),
    Sketcher.Constraint("Coincident", 1, 2, 2, 1),
    Sketcher.Constraint("Coincident", 2, 2, 3, 1),
    Sketcher.Constraint("Coincident", 3, 2, 0, 1),
    Sketcher.Constraint("Vertical", 0),
    Sketcher.Constraint("Horizontal", 1),
    Sketcher.Constraint("Vertical", 2),
    Sketcher.Constraint("Horizontal", 3),
    Sketcher.Constraint("Symmetric", 0, 2, 2, 2, -1, 1),
    Sketcher.Constraint("DistanceX", 1, 1, 1, 2, Q("247.833478 mm")),
    Sketcher.Constraint("DistanceY", 0, 2, 0, 1, Q("202.077094 mm")),
])
pad10 = body2.newObject("PartDesign::Pad", "Pad009")
pad10.Profile = sketch11
pad10.Length = 25

# Sketch on XY plane
sketch12 = body2.newObject("Sketcher::SketchObject", "Sketch011")
sketch12.AttachmentSupport = (doc.getObject("XY_Plane001"), [""])
sketch12.MapMode = "FlatFace"
sketch12.AttachmentOffset = App.Placement(App.Vector(0, 0, 181.463309), App.Rotation())
sketch12.addGeometry([
    Part.LineSegment(App.Vector(-82.379901, 73.030035, 0), App.Vector(-82.379901, -73.030035, 0)),
    Part.LineSegment(App.Vector(-82.379901, -73.030035, 0), App.Vector(82.379901, -73.030035, 0)),
    Part.LineSegment(App.Vector(82.379901, -73.030035, 0), App.Vector(82.379901, 73.030035, 0)),
    Part.LineSegment(App.Vector(82.379901, 73.030035, 0), App.Vector(-82.379901, 73.030035, 0)),
], False)
sketch12.addConstraint([
    Sketcher.Constraint("Coincident", 0, 2, 1, 1),
    Sketcher.Constraint("Coincident", 1, 2, 2, 1),
    Sketcher.Constraint("Coincident", 2, 2, 3, 1),
    Sketcher.Constraint("Coincident", 3, 2, 0, 1),
    Sketcher.Constraint("Vertical", 0),
    Sketcher.Constraint("Horizontal", 1),
    Sketcher.Constraint("Vertical", 2),
    Sketcher.Constraint("Horizontal", 3),
    Sketcher.Constraint("Symmetric", 0, 2, 2, 2, -1, 1),
    Sketcher.Constraint("DistanceY", 0, 2, 0, 1, Q("146.06007 mm")),
    Sketcher.Constraint("DistanceX", 0, 2, -1, 1, Q("82.379901 mm")),
])
pocket2 = body2.newObject("PartDesign::Pocket", "Pocket001")
pocket2.Profile = sketch12
pocket2.Length = 19
body3 = doc.addObject("PartDesign::Body", "Body002")

# Sketch on YZ plane
sketch13 = body3.newObject("Sketcher::SketchObject", "Sketch012")
sketch13.AttachmentSupport = (doc.getObject("YZ_Plane002"), [""])
sketch13.MapMode = "FlatFace"
sketch13.AttachmentOffset = App.Placement(App.Vector(0, 0, 101), App.Rotation())
sketch13.addGeometry([
    Part.Circle(App.Vector(0, 0, 0), App.Vector(0, 0, 1), 67.881896),
    Part.Circle(App.Vector(0, 0, 0), App.Vector(0, 0, 1), 66.463309),
], False)
sketch13.addConstraint([
    Sketcher.Constraint("Coincident", 0, 3, -1, 1),
    Sketcher.Constraint("Coincident", 1, 3, -1, 1),
    Sketcher.Constraint("Diameter", 0, Q("135.763791 mm")),
    Sketcher.Constraint("Diameter", 1, Q("132.926619 mm")),
])
pad11 = body3.newObject("PartDesign::Pad", "Pad010")
pad11.Profile = sketch13
pad11.Length = 30
pad11.Reversed = True
body.AllowCompound = True
doc.recompute()

boolean = body.newObject("PartDesign::Boolean", "Boolean")
boolean.Type = "Fuse"
boolean.addObjects([body3])

# Sketch on YZ plane
sketch14 = body.newObject("Sketcher::SketchObject", "Sketch013")
sketch14.AttachmentSupport = (doc.getObject("YZ_Plane"), [""])
sketch14.MapMode = "FlatFace"
sketch14.AttachmentOffset = App.Placement(App.Vector(0, 0, 101), App.Rotation())
sketch14.addGeometry([
    Part.LineSegment(App.Vector(75.351408, 76.839217, 0), App.Vector(-75.351408, 76.839217, 0)),
    Part.LineSegment(App.Vector(-75.351408, 76.839217, 0), App.Vector(-75.351408, -76.839217, 0)),
    Part.LineSegment(App.Vector(-75.351408, -76.839217, 0), App.Vector(75.351408, -76.839217, 0)),
    Part.LineSegment(App.Vector(75.351408, -76.839217, 0), App.Vector(75.351408, 76.839217, 0)),
], False)
sketch14.addConstraint([
    Sketcher.Constraint("Coincident", 0, 2, 1, 1),
    Sketcher.Constraint("Coincident", 1, 2, 2, 1),
    Sketcher.Constraint("Coincident", 2, 2, 3, 1),
    Sketcher.Constraint("Coincident", 3, 2, 0, 1),
    Sketcher.Constraint("Horizontal", 0),
    Sketcher.Constraint("Vertical", 1),
    Sketcher.Constraint("Horizontal", 2),
    Sketcher.Constraint("Vertical", 3),
    Sketcher.Constraint("Symmetric", 0, 2, 2, 2, -1, 1),
    Sketcher.Constraint("DistanceX", 0, 2, 0, 1, Q("150.702816 mm")),
    Sketcher.Constraint("DistanceY", 1, 2, 1, 1, Q("153.678434 mm")),
])
pad12 = body.newObject("PartDesign::Pad", "Pad011")
pad12.Profile = sketch14
pad12.Length = 1
pad12.Reversed = True
body4 = doc.addObject("PartDesign::Body", "Body003")

# Sketch on YZ plane
sketch15 = body4.newObject("Sketcher::SketchObject", "Sketch014")
sketch15.AttachmentSupport = (doc.getObject("YZ_Plane003"), [""])
sketch15.MapMode = "FlatFace"
sketch15.AttachmentOffset = App.Placement(App.Vector(0, 0, 8), App.Rotation())
sketch15.addGeometry([
    Part.LineSegment(App.Vector(86.661761, -100.583838, 0), App.Vector(86.661761, -66.456691, 0)),  # 0
    Part.LineSegment(App.Vector(86.661761, -66.456691, 0), App.Vector(66.463309, -66.456691, 0)),  # 1
    Part.LineSegment(App.Vector(66.463309, -66.456691, 0), App.Vector(66.463309, -97.908427, 0)),  # 2
    Part.LineSegment(App.Vector(66.463309, -97.908427, 0), App.Vector(-66.463309, -97.908427, 0)),  # 3
    Part.LineSegment(App.Vector(-66.463309, -97.908427, 0), App.Vector(-66.463309, -66.456691, 0)),  # 4
    Part.LineSegment(App.Vector(-66.463309, -66.456691, 0), App.Vector(-80.71095, -66.456691, 0)),  # 5
    Part.LineSegment(App.Vector(-80.71095, -66.456691, 0), App.Vector(-80.71095, -100.583838, 0)),  # 6
    Part.LineSegment(App.Vector(-80.71095, -100.583838, 0), App.Vector(86.661761, -100.583838, 0)),  # 7
], False)
sketch15.addConstraint([
    Sketcher.Constraint("Coincident", 0, 2, 1, 1),
    Sketcher.Constraint("Coincident", 1, 2, 2, 1),
    Sketcher.Constraint("Coincident", 2, 2, 3, 1),
    Sketcher.Constraint("Coincident", 3, 2, 4, 1),
    Sketcher.Constraint("Coincident", 4, 2, 5, 1),
    Sketcher.Constraint("Coincident", 5, 2, 6, 1),
    Sketcher.Constraint("Coincident", 6, 2, 7, 1),
    Sketcher.Constraint("Coincident", 7, 2, 0, 1),
    Sketcher.Constraint("Vertical", 0),
    Sketcher.Constraint("Horizontal", 1),
    Sketcher.Constraint("Vertical", 2),
    Sketcher.Constraint("Horizontal", 3),
    Sketcher.Constraint("Vertical", 4),
    Sketcher.Constraint("Horizontal", 5),
    Sketcher.Constraint("Vertical", 6),
    Sketcher.Constraint("Horizontal", 7),
    Sketcher.Constraint("Symmetric", 1, 2, 4, 2, -2),
    Sketcher.Constraint("DistanceX", 1, 2, 1, 1, Q("20.198451 mm")),
    Sketcher.Constraint("DistanceX", 3, 2, 3, 1, Q("132.926619 mm")),
    Sketcher.Constraint("DistanceX", 5, 2, 5, 1, Q("14.247641 mm")),
    Sketcher.Constraint("DistanceY", 0, 1, 0, 2, Q("34.127147 mm")),
    Sketcher.Constraint("DistanceY", 2, 2, 2, 1, Q("31.451736 mm")),
    Sketcher.Constraint("DistanceY", 0, 2, -1, 1, Q("66.456691 mm")),
])
pad13 = body4.newObject("PartDesign::Pad", "Pad012")
pad13.Profile = sketch15
pad13.Length = 92
doc.recompute()

boolean2 = body.newObject("PartDesign::Boolean", "Boolean001")
boolean2.Type = "Fuse"
boolean2.addObjects([body4])

# Sketch on XY plane
sketch16 = body.newObject("Sketcher::SketchObject", "Sketch015")
sketch16.AttachmentSupport = (doc.getObject("XY_Plane"), [""])
sketch16.MapMode = "FlatFace"
sketch16.AttachmentOffset = App.Placement(App.Vector(0, 0, -76.839217), App.Rotation())
sketch16.addGeometry([
    Part.LineSegment(App.Vector(101, 75.351408, 0), App.Vector(101, -75.351408, 0)),
    Part.LineSegment(App.Vector(101, -75.351408, 0), App.Vector(100, -75.351408, 0)),
    Part.LineSegment(App.Vector(100, -75.351408, 0), App.Vector(100, 75.351408, 0)),
    Part.LineSegment(App.Vector(100, 75.351408, 0), App.Vector(101, 75.351408, 0)),
], False)
sketch16.addConstraint([
    Sketcher.Constraint("Coincident", 0, 2, 1, 1),
    Sketcher.Constraint("Coincident", 1, 2, 2, 1),
    Sketcher.Constraint("Coincident", 2, 2, 3, 1),
    Sketcher.Constraint("Coincident", 3, 2, 0, 1),
    Sketcher.Constraint("Vertical", 0),
    Sketcher.Constraint("Horizontal", 1),
    Sketcher.Constraint("Vertical", 2),
    Sketcher.Constraint("Horizontal", 3),
    Sketcher.Constraint("DistanceX", 1, 2, 1, 1, Q("1 mm")),
    Sketcher.Constraint("DistanceX", -1, 1, 0, 2, Q("101 mm")),
    Sketcher.Constraint("DistanceY", 0, 2, 0, 1, Q("150.702816 mm")),
    Sketcher.Constraint("DistanceY", 0, 2, -1, 1, Q("75.351408 mm")),
])
pad14 = body.newObject("PartDesign::Pad", "Pad013")
pad14.Profile = sketch16
pad14.Length = 30
pad14.Reversed = True

# Sketch on XY plane
sketch17 = body.newObject("Sketcher::SketchObject", "Sketch016")
sketch17.AttachmentSupport = (doc.getObject("XY_Plane"), [""])
sketch17.MapMode = "FlatFace"
sketch17.AttachmentOffset = App.Placement(App.Vector(0, 0, -66.456691), App.Rotation())
sketch17.addGeometry([
    Part.LineSegment(App.Vector(8, 66.463309, 0), App.Vector(8, -66.463309, 0)),
    Part.LineSegment(App.Vector(8, -66.463309, 0), App.Vector(100, -67.881896, 0)),
    Part.LineSegment(App.Vector(100, -67.881896, 0), App.Vector(100, 67.881896, 0)),
    Part.LineSegment(App.Vector(100, 67.881896, 0), App.Vector(8, 66.463309, 0)),
], False)
sketch17.addConstraint([
    Sketcher.Constraint("Coincident", 0, 2, 1, 1),
    Sketcher.Constraint("Coincident", 1, 2, 2, 1),
    Sketcher.Constraint("Coincident", 2, 2, 3, 1),
    Sketcher.Constraint("Coincident", 3, 2, 0, 1),
    Sketcher.Constraint("Vertical", 0),
    Sketcher.Constraint("Vertical", 2),
    Sketcher.Constraint("Equal", 1, 3),
    Sketcher.Constraint("DistanceX", -1, 1, 0, 2, Q("8 mm")),
    Sketcher.Constraint("DistanceX", -1, 1, 1, 2, Q("100 mm")),
    Sketcher.Constraint("DistanceY", 0, 2, 0, 1, Q("132.926619 mm")),
    Sketcher.Constraint("DistanceY", 2, 1, 2, 2, Q("135.763791 mm")),
    Sketcher.Constraint("DistanceY", 0, 2, -1, 1, Q("66.463309 mm")),
])
pad15 = body.newObject("PartDesign::Pad", "Pad014")
pad15.Profile = sketch17
pad15.Length = 2
pad15.Reversed = True

# Sketch on YZ plane
sketch18 = body.newObject("Sketcher::SketchObject", "Sketch017")
sketch18.AttachmentSupport = (doc.getObject("YZ_Plane"), [""])
sketch18.MapMode = "FlatFace"
sketch18.AttachmentOffset = App.Placement(App.Vector(0, 0, 8), App.Rotation())
sketch18.addGeometry([
    Part.LineSegment(App.Vector(-75.351408, -100.583838, 0), App.Vector(-80.71095, -100.583838, 0)),
    Part.LineSegment(App.Vector(-80.71095, -100.583838, 0), App.Vector(-80.71095, -66.456691, 0)),
    Part.LineSegment(App.Vector(-80.71095, -66.456691, 0), App.Vector(-75.351408, -66.456691, 0)),
    Part.LineSegment(App.Vector(-75.351408, -66.456691, 0), App.Vector(-75.351408, -100.583838, 0)),
], False)
sketch18.addConstraint([
    Sketcher.Constraint("Coincident", 0, 2, 1, 1),
    Sketcher.Constraint("Coincident", 1, 2, 2, 1),
    Sketcher.Constraint("Coincident", 2, 2, 3, 1),
    Sketcher.Constraint("Coincident", 3, 2, 0, 1),
    Sketcher.Constraint("Horizontal", 0),
    Sketcher.Constraint("Vertical", 1),
    Sketcher.Constraint("Horizontal", 2),
    Sketcher.Constraint("Vertical", 3),
    Sketcher.Constraint("DistanceX", 0, 2, 0, 1, Q("5.359542 mm")),
    Sketcher.Constraint("DistanceY", 1, 1, 1, 2, Q("34.127147 mm")),
    Sketcher.Constraint("DistanceX", 0, 2, -1, 1, Q("80.71095 mm")),
    Sketcher.Constraint("DistanceY", 1, 2, -1, 1, Q("66.456691 mm")),
])
pad16 = body.newObject("PartDesign::Pad", "Pad015")
pad16.Profile = sketch18
pad16.Length = 114
pad16.Reversed = True

doc.recompute()
